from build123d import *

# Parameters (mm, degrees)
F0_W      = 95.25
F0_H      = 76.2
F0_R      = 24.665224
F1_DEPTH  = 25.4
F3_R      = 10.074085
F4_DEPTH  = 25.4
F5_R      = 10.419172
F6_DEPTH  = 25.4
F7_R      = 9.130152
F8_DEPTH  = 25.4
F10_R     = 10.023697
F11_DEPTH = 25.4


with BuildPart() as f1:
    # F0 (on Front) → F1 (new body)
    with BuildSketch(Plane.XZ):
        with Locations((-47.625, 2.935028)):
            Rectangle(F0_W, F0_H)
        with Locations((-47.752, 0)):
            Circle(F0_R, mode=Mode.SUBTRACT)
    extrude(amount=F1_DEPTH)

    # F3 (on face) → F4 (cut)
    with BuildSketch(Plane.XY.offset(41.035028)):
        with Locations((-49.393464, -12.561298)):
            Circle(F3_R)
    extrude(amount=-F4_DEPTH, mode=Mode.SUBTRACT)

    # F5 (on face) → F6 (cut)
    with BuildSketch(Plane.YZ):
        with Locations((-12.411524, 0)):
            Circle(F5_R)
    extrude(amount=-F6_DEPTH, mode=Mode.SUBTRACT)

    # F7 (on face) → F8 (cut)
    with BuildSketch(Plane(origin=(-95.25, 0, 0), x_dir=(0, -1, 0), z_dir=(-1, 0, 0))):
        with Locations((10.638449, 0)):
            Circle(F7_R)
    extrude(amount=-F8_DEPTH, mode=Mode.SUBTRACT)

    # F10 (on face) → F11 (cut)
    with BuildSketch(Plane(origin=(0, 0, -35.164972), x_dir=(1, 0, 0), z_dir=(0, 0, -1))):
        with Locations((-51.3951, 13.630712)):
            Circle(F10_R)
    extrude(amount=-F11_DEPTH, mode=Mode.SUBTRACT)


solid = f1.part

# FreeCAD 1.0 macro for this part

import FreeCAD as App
import Part
import Sketcher
Q = App.Units.Quantity

doc = App.newDocument("Part")
body = doc.addObject("PartDesign::Body", "Body")

# Sketch on XZ plane
sketch1 = body.newObject("Sketcher::SketchObject", "Sketch")
sketch1.AttachmentSupport = (doc.getObject("XZ_Plane"), [""])
sketch1.MapMode = "FlatFace"
sketch1.addGeometry([
    Part.LineSegment(App.Vector(-95, 41, 0), App.Vector(-95, -35, 0)),  # 0
    Part.LineSegment(App.Vector(-95, -35, 0), App.Vector(0, -35, 0)),  # 1
    Part.LineSegment(App.Vector(0, -35, 0), App.Vector(0, 41, 0)),  # 2
    Part.LineSegment(App.Vector(0, 41, 0), App.Vector(-95, 41, 0)),  # 3
    Part.Circle(App.Vector(-48, 0, 0), App.Vector(0, 0, 1), 25),  # 4
], False)
sketch1.addConstraint([
    Sketcher.Constraint("Coincident", 0, 2, 1, 1),
    Sketcher.Constraint("Coincident", 1, 2, 2, 1),
    Sketcher.Constraint("Coincident", 2, 2, 3, 1),
    Sketcher.Constraint("Coincident", 3, 2, 0, 1),
    Sketcher.Constraint("Vertical", 0),
    Sketcher.Constraint("Horizontal", 1),
    Sketcher.Constraint("Vertical", 2),
    Sketcher.Constraint("Horizontal", 3),
    Sketcher.Constraint("PointOnObject", 4, 3, -1),
    Sketcher.Constraint("PointOnObject", 1, 2, -2),
    Sketcher.Constraint("DistanceY", 0, 2, 0, 1, Q("3 in")),
    Sketcher.Constraint("DistanceX", 1, 1, 1, 2, Q("3.75 in")),
    Sketcher.Constraint("DistanceX", 4, 3, -1, 1, Q("1.88 in")),
    Sketcher.Constraint("Diameter", 4, Q("49.330448 mm")),
    Sketcher.Constraint("DistanceY", 0, 2, -1, 1, Q("35.164972 mm")),
])
pad1 = body.newObject("PartDesign::Pad", "Pad")
pad1.Profile = sketch1
pad1.Length = Q("1 in")

# Sketch on XY plane
sketch2 = body.newObject("Sketcher::SketchObject", "Sketch001")
sketch2.AttachmentSupport = (doc.getObject("XY_Plane"), [""])
sketch2.MapMode = "FlatFace"
sketch2.AttachmentOffset = App.Placement(App.Vector(0, 0, 41.035028), App.Rotation())
sketch2.addGeometry(Part.Circle(App.Vector(-49, -13, 0), App.Vector(0, 0, 1), 10), False)
sketch2.addConstraint([
    Sketcher.Constraint("Diameter", 0, Q("20.14817 mm")),
    Sketcher.Constraint("DistanceY", 0, 3, -1, 1, Q("12.561298 mm")),
    Sketcher.Constraint("DistanceX", 0, 3, -1, 1, Q("49.393464 mm")),
])
pocket1 = body.newObject("PartDesign::Pocket", "Pocket")
pocket1.Profile = sketch2
pocket1.Length = Q("1 in")

# Sketch on YZ plane
sketch3 = body.newObject("Sketcher::SketchObject", "Sketch002")
sketch3.AttachmentSupport = (doc.getObject("YZ_Plane"), [""])
sketch3.MapMode = "FlatFace"
sketch3.addGeometry(Part.Circle(App.Vector(-12, 0, 0), App.Vector(0, 0, 1), 10), False)
sketch3.addConstraint([
    Sketcher.Constraint("PointOnObject", 0, 3, -1),
    Sketcher.Constraint("Diameter", 0, Q("20.838344 mm")),
    Sketcher.Constraint("DistanceX", 0, 3, -1, 1, Q("12.411524 mm")),
])
pocket2 = body.newObject("PartDesign::Pocket", "Pocket001")
pocket2.Profile = sketch3
pocket2.Length = Q("1 in")

# Sketch on YZ plane
sketch4 = body.newObject("Sketcher::SketchObject", "Sketch003")
sketch4.AttachmentSupport = (doc.getObject("YZ_Plane"), [""])
sketch4.MapMode = "FlatFace"
sketch4.AttachmentOffset = App.Placement(App.Vector(0, 0, -3.75 * 25.4), App.Rotation())
sketch4.addGeometry(Part.Circle(App.Vector(-11, 0, 0), App.Vector(0, 0, 1), 9), False)
sketch4.addConstraint([
    Sketcher.Constraint("PointOnObject", 0, 3, -1),
    Sketcher.Constraint("Diameter", 0, Q("18.260304 mm")),
    Sketcher.Constraint("DistanceX", 0, 3, -1, 1, Q("10.638449 mm")),
])
pocket3 = body.newObject("PartDesign::Pocket", "Pocket002")
pocket3.Profile = sketch4
pocket3.Length = Q("1 in")
pocket3.Reversed = True

# Sketch on XY plane
sketch5 = body.newObject("Sketcher::SketchObject", "Sketch004")
sketch5.AttachmentSupport = (doc.getObject("XY_Plane"), [""])
sketch5.MapMode = "FlatFace"
sketch5.AttachmentOffset = App.Placement(App.Vector(0, 0, -35.164972), App.Rotation())
sketch5.addGeometry(Part.Circle(App.Vector(-51, -14, 0), App.Vector(0, 0, 1), 10), False)
sketch5.addConstraint([
    Sketcher.Constraint("Diameter", 0, Q("20.047394 mm")),
    Sketcher.Constraint("DistanceX", 0, 3, -1, 1, Q("51.3951 mm")),
    Sketcher.Constraint("DistanceY", 0, 3, -1, 1, Q("13.630712 mm")),
])
pocket4 = body.newObject("PartDesign::Pocket", "Pocket003")
pocket4.Profile = sketch5
pocket4.Length = Q("1 in")
pocket4.Reversed = True

doc.recompute()
